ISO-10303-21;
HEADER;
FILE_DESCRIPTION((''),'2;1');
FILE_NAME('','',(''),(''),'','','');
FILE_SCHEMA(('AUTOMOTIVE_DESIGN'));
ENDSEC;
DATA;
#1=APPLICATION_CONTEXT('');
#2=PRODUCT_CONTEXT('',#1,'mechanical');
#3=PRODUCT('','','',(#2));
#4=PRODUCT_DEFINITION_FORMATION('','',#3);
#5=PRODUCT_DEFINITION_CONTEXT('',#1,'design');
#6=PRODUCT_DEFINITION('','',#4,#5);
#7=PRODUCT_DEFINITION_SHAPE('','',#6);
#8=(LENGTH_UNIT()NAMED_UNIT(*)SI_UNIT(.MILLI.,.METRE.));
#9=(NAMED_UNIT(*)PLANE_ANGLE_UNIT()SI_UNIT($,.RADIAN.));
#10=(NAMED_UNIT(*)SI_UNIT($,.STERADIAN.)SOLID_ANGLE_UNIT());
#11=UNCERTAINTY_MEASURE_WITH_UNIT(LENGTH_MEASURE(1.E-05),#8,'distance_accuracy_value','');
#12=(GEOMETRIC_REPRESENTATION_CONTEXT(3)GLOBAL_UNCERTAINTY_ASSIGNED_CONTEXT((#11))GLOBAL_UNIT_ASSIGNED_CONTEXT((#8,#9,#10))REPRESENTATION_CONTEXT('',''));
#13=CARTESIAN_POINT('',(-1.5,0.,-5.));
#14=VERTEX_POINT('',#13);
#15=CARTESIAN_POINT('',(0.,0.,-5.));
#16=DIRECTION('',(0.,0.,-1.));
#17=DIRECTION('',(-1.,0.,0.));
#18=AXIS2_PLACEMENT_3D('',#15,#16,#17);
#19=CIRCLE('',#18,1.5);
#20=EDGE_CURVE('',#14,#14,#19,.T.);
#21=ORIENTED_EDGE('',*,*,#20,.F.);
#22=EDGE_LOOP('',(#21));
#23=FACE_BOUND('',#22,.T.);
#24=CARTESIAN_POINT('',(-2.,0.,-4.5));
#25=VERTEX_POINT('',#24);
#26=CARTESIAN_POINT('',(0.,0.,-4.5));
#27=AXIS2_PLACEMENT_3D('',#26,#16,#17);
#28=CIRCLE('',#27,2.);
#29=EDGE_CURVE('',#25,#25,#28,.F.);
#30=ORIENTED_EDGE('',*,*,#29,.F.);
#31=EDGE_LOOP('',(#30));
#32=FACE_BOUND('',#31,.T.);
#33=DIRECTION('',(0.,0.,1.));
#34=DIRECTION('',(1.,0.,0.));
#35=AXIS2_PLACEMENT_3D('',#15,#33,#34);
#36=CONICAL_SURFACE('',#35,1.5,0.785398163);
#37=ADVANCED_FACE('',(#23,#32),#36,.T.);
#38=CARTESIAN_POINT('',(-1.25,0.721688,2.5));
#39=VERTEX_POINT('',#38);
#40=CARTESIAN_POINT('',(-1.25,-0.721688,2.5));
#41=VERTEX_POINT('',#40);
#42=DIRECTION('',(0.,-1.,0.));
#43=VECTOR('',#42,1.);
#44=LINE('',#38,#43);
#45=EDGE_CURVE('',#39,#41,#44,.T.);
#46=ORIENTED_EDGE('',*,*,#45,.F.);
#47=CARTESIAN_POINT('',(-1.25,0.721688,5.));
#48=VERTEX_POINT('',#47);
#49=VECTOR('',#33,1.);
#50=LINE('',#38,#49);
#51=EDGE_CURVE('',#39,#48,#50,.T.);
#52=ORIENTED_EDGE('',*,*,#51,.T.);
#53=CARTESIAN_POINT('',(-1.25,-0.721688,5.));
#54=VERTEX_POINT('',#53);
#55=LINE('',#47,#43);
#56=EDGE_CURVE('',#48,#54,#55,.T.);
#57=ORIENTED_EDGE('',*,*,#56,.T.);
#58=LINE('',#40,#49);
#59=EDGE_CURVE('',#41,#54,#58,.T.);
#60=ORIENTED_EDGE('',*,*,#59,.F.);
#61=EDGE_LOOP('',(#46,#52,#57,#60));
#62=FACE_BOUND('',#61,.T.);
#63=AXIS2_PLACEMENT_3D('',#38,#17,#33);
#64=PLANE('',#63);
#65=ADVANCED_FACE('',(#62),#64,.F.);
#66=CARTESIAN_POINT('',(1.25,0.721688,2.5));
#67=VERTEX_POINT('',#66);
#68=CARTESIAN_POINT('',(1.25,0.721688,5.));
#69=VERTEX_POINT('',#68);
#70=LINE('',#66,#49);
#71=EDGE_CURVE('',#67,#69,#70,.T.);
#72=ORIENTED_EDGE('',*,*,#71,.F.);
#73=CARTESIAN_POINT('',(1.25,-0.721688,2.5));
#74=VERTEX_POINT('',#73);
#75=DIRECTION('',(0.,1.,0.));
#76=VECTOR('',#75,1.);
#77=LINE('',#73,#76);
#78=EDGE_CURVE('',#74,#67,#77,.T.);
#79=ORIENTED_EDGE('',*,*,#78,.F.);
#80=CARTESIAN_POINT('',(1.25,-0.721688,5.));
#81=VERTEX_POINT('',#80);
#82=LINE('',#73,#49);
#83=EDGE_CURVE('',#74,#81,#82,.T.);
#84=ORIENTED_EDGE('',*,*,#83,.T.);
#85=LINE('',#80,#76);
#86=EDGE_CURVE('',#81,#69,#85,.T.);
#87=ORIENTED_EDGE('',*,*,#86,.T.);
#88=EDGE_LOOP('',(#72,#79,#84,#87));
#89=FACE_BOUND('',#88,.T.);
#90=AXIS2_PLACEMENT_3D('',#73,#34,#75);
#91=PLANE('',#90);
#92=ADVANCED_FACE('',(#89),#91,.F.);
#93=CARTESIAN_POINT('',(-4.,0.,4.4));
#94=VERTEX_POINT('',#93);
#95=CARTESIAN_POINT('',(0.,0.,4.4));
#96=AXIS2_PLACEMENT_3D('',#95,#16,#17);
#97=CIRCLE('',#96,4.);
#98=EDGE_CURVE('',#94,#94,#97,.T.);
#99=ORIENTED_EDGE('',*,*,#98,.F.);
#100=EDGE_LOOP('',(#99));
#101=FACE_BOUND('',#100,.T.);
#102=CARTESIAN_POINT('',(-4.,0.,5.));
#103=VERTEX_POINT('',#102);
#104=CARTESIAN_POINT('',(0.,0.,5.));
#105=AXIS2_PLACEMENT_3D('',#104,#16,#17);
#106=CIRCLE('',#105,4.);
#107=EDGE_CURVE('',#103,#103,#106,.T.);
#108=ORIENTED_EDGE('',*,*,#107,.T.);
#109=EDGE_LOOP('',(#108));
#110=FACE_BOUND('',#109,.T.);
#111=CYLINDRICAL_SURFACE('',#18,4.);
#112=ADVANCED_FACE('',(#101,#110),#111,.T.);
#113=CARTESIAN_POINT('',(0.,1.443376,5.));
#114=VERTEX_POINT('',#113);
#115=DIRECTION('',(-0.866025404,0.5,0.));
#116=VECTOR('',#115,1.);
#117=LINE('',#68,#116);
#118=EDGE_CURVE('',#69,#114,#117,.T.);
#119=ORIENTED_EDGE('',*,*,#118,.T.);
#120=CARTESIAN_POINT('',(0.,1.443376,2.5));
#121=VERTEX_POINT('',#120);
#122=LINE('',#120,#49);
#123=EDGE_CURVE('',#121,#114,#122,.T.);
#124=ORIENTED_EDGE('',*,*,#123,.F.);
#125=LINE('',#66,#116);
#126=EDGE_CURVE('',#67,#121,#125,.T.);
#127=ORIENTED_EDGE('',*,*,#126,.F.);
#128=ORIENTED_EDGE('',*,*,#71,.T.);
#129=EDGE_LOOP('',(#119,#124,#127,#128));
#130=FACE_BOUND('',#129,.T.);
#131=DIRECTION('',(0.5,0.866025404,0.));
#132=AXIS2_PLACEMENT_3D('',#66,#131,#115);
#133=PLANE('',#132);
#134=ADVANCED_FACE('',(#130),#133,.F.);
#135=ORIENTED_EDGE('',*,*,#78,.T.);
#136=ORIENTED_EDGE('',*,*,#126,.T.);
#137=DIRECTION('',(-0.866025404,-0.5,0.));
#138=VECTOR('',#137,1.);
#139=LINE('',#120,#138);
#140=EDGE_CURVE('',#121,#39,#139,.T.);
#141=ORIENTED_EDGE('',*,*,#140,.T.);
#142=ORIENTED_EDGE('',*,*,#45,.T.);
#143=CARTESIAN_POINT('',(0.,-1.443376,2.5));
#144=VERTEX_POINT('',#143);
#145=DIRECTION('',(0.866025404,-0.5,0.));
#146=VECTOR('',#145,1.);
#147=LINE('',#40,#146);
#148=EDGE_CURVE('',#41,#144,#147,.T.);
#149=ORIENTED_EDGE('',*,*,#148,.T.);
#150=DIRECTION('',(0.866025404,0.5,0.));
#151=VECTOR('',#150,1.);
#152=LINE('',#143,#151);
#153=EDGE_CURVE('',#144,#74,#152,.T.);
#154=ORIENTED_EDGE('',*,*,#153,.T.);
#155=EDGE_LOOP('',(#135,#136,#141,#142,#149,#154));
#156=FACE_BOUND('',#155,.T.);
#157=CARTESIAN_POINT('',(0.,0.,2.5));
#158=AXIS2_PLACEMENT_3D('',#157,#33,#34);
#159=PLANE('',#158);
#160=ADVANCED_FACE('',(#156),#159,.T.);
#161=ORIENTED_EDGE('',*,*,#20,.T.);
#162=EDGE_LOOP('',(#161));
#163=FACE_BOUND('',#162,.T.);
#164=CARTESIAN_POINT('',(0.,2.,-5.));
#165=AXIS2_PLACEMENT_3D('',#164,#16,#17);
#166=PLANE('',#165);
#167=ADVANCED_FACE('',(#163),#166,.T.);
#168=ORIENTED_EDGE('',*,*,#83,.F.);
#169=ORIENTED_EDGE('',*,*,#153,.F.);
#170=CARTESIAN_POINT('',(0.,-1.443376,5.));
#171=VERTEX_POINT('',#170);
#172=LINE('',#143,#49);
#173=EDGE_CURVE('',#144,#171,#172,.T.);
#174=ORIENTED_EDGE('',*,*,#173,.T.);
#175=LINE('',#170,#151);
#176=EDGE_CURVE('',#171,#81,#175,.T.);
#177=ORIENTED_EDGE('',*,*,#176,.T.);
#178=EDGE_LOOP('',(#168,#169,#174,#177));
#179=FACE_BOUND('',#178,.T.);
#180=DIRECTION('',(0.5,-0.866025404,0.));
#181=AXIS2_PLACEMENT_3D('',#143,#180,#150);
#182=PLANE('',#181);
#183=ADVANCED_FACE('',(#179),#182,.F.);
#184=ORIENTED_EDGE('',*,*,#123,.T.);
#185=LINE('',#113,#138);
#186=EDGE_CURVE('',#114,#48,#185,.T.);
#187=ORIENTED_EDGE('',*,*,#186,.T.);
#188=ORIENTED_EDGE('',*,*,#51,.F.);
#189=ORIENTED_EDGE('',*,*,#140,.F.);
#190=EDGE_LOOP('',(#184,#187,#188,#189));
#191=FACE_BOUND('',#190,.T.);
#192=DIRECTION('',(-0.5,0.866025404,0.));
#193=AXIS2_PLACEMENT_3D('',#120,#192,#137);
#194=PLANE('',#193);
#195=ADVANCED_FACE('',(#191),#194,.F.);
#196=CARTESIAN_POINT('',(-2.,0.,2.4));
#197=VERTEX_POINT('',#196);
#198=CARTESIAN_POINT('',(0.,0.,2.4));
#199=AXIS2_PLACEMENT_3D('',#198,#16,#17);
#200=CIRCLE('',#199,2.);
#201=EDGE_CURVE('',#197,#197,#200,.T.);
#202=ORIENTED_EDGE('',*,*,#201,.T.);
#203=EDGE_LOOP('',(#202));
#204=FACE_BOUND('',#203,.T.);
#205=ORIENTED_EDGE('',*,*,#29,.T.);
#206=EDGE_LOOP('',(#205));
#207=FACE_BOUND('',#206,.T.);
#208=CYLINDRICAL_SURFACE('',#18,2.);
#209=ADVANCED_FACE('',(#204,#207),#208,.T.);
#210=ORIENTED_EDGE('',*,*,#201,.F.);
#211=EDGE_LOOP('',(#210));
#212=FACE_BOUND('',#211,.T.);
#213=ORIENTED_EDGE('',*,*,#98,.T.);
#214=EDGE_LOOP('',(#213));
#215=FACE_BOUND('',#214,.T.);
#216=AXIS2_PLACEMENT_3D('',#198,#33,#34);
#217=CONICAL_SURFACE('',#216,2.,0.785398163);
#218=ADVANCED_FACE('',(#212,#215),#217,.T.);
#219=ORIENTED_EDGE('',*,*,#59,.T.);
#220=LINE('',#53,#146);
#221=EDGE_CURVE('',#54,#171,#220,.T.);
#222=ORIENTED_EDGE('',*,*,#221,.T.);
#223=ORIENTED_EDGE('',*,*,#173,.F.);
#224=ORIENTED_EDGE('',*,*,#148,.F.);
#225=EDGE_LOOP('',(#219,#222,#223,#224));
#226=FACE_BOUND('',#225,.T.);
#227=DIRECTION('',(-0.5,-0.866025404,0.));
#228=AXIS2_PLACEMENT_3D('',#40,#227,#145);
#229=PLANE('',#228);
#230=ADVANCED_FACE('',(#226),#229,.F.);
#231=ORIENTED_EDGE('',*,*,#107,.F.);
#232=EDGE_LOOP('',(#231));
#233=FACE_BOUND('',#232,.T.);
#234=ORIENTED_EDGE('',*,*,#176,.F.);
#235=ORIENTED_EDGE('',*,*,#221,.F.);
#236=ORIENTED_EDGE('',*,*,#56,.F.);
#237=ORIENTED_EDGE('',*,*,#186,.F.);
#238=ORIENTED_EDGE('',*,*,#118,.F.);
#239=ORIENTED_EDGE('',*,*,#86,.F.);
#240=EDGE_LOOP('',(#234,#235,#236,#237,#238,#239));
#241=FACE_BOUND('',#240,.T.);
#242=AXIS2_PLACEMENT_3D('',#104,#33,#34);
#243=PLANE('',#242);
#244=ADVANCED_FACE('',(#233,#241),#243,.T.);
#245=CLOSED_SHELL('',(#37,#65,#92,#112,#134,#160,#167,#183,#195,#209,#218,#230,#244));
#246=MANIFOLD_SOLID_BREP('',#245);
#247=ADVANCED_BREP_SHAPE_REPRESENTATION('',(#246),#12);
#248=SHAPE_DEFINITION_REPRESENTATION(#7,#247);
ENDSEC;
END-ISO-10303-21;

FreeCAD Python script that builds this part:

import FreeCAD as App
import Part
import Sketcher
Q = App.Units.Quantity


def edges_at(feature, points):
    """Names of the edges that pass closest to the given points."""
    edges = feature.Shape.Edges
    near = lambda p: min(range(len(edges)), key=lambda i: edges[i].distToShape(Part.Vertex(*p))[0])
    return sorted({f"Edge{near(p) + 1}" for p in points})


def add_polygon(sketch, points):
    """Adds a closed chain of lines whose ends are joined by coincident constraints."""
    first, n = sketch.GeometryCount, len(points)
    for a, b in zip(points, points[1:] + points[:1]):
        sketch.addGeometry(Part.LineSegment(App.Vector(*a, 0), App.Vector(*b, 0)), False)
    for i in range(n):
        sketch.addConstraint(Sketcher.Constraint("Coincident", first + i, 2, first + (i + 1) % n, 1))

doc = App.newDocument("Part")
params = doc.addObject("Spreadsheet::Sheet", "Params")
for row, (alias, value) in enumerate([
    ("sketch1_width", "4 mm"),
    ("sketch1_width2", "2 mm"),
    ("sketch1_height", "10 mm"),
    ("sketch1_height2", "7.4 mm"),
    ("revolution_angle", "360 deg"),
    ("chamfer_size", "0.5 mm"),
    ("pocket1_length", "2.5 mm"),
], start=1):
    params.set(f"A{row}", alias)
    params.set(f"B{row}", "=" + value)
    params.setAlias(f"B{row}", alias)

body = doc.addObject("PartDesign::Body", "Body")

sketch1 = body.newObject("Sketcher::SketchObject", "Sketch")
sketch1.AttachmentSupport = (doc.getObject("YZ_Plane"), [""])
sketch1.MapMode = "FlatFace"
add_polygon(sketch1, [(4, 5), (0, 5), (0, -5), (2, -5), (2, 2.4), (4, 4.4)])
sketch1.addConstraint([
    Sketcher.Constraint("Horizontal", 0),
    Sketcher.Constraint("Vertical", 1),
    Sketcher.Constraint("Horizontal", 2),
    Sketcher.Constraint("Vertical", 3),
    Sketcher.Constraint("Vertical", 5),
    Sketcher.Constraint("Symmetric", 0, 2, 1, 2, -1, 1),
    Sketcher.Constraint("DistanceX", 0, 2, 0, 1, Q("4 mm")),
    Sketcher.Constraint("DistanceX", 2, 1, 2, 2, Q("2 mm")),
    Sketcher.Constraint("DistanceY", 1, 2, 1, 1, Q("10 mm")),
    Sketcher.Constraint("Angle", 4, Q("45 deg")),
    Sketcher.Constraint("DistanceY", 3, 1, 3, 2, Q("7.4 mm")),
])
sketch1.setExpression("Constraints[12]", "Params.sketch1_width")
sketch1.setExpression("Constraints[13]", "Params.sketch1_width2")
sketch1.setExpression("Constraints[14]", "Params.sketch1_height")
sketch1.setExpression("Constraints[16]", "Params.sketch1_height2")
revolution = body.newObject("PartDesign::Revolution", "Revolution")
revolution.Profile = sketch1
revolution.ReferenceAxis = (sketch1, ["V_Axis"])
revolution.setExpression("Angle", "Params.revolution_angle")
doc.recompute()

chamfer = body.newObject("PartDesign::Chamfer", "Chamfer")
chamfer.Base = (revolution, edges_at(revolution, [(2, 0, -5)]))
chamfer.setExpression("Size", "Params.chamfer_size")

sketch2 = body.newObject("Sketcher::SketchObject", "Sketch001")
sketch2.AttachmentSupport = (doc.getObject("XY_Plane"), [""])
sketch2.MapMode = "FlatFace"
sketch2.AttachmentOffset = App.Placement(App.Vector(0, 0, 5), App.Rotation())
add_polygon(sketch2, [(0, 1.4), (-1.2, 0.7), (-1.2, -0.7), (0, -1.4), (1.2, -0.7), (1.2, 0.7)])
sketch2.addConstraint([
    Sketcher.Constraint("Vertical", 1),
    Sketcher.Constraint("Vertical", 4),
    Sketcher.Constraint("Symmetric", 0, 2, 3, 2, -1, 1),
    Sketcher.Constraint("Symmetric", 2, 2, 5, 2, -1, 1),
    Sketcher.Constraint("PointOnObject", 2, 2, -2),
    Sketcher.Constraint("Parallel", 2, 5),
    Sketcher.Constraint("Horizontal", 1, 2, 3, 2),
    Sketcher.Constraint("Angle", 0, Q("-150 deg")),
    Sketcher.Constraint("DistanceX", 1, 2, 3, 2, Q("2.5 mm")),
    Sketcher.Constraint("DistanceY", 1, 2, 1, 1, Q("1.443376 mm")),
])
pocket1 = body.newObject("PartDesign::Pocket", "Pocket")
pocket1.Profile = sketch2
pocket1.setExpression("Length", "Params.pocket1_length")

doc.recompute()
